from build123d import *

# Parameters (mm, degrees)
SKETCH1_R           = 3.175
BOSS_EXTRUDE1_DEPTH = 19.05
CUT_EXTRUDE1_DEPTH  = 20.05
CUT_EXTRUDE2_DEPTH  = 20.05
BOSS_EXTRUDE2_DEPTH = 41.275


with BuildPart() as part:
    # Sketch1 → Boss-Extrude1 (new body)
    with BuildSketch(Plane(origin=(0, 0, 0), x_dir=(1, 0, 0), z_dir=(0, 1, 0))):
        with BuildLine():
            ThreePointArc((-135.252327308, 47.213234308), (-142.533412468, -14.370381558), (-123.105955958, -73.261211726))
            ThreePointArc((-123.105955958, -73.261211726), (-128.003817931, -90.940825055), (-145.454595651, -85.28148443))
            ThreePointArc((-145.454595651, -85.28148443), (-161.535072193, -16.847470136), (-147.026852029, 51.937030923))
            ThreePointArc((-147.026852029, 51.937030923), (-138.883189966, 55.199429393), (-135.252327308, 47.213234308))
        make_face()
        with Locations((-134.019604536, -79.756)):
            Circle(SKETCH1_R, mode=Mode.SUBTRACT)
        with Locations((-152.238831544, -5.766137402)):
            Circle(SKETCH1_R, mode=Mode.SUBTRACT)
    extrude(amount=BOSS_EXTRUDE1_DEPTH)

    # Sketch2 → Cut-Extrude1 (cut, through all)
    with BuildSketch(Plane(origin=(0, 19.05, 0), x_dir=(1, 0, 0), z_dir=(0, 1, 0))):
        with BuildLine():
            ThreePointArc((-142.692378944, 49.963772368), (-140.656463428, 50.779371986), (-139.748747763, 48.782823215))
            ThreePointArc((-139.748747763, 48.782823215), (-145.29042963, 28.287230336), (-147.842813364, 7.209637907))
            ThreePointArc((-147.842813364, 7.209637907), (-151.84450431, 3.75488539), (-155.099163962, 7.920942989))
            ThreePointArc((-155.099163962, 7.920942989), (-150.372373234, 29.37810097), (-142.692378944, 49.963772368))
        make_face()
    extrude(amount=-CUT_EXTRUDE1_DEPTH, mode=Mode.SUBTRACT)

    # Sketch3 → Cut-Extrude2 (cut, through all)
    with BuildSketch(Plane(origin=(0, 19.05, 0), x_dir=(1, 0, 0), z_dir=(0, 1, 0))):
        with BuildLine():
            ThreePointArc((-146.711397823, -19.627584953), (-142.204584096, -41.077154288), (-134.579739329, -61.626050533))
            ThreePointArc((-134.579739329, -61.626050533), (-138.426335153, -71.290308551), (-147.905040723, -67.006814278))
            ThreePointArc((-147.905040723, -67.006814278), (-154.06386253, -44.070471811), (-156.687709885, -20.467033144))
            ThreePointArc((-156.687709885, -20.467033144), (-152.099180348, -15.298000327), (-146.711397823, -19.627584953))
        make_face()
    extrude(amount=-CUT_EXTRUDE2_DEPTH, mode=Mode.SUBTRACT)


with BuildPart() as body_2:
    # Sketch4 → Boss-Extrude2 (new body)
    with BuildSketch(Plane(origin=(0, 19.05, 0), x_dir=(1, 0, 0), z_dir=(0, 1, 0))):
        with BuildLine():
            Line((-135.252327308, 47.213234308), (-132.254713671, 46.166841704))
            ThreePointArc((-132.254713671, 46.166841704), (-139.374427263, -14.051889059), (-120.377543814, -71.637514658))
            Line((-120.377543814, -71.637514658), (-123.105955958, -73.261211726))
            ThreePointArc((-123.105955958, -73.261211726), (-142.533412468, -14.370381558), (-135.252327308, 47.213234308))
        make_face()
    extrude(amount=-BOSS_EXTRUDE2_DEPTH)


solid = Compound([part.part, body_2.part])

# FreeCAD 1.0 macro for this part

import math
import FreeCAD as App
import Part
import Sketcher

V = App.Vector
Q = App.Units.Quantity

doc = App.newDocument("Part")
body = doc.addObject("PartDesign::Body", "Body")

sketch1 = body.newObject("Sketcher::SketchObject", "Sketch")
sketch1.AttachmentSupport = (doc.getObject("XZ_Plane"), [""])
sketch1.MapMode = "FlatFace"
sketch1.addGeometry(Part.ArcOfCircle(Part.Circle(V(0, 0, 0), V(0, 0, 1), 143.3), math.radians(149), math.radians(199)), False)
sketch1.addGeometry(Part.ArcOfCircle(Part.Circle(V(-141.2, -49.3, 0), V(0, 0, 1), 6.3), math.radians(-156), math.radians(19)), False)
sketch1.addGeometry(Part.ArcOfCircle(Part.Circle(V(0, 15, 0), V(0, 0, 1), 161.5), math.radians(154), math.radians(204)), False)
sketch1.addGeometry(Part.ArcOfCircle(Part.Circle(V(-134, 79.8, 0), V(0, 0, 1), 12.7), math.radians(-31), math.radians(154)), False)
sketch1.addGeometry(Part.Circle(V(-134, 79.8, 0), V(0, 0, 1), 3.2), False)
sketch1.addGeometry(Part.Circle(V(-152.2, 5.8, 0), V(0, 0, 1), 3.2), False)
sketch1.addConstraint(Sketcher.Constraint("Tangent", 0, 2, 1, 2))
sketch1.addConstraint(Sketcher.Constraint("Tangent", 1, 1, 2, 2))
sketch1.addConstraint(Sketcher.Constraint("Tangent", 2, 1, 3, 2))
sketch1.addConstraint(Sketcher.Constraint("Tangent", 3, 1, 0, 1))
sketch1.addConstraint(Sketcher.Constraint("Coincident", 0, 3, -1, 1))
sketch1.addConstraint(Sketcher.Constraint("Coincident", 4, 3, 3, 3))
sketch1.addConstraint(Sketcher.Constraint("Equal", 4, 5))
sketch1.addConstraint(Sketcher.Constraint("PointOnObject", 2, 3, -2))
sketch1.addConstraint(Sketcher.Constraint("Radius", 3, Q("0.5 in")))
sketch1.addConstraint(Sketcher.Constraint("Diameter", 4, Q("0.25 in")))
sketch1.addConstraint(Sketcher.Constraint("Radius", 0, Q("5.64 in")))
sketch1.addConstraint(Sketcher.Constraint("Radius", 1, Q("0.25 in")))
sketch1.addConstraint(Sketcher.Constraint("DistanceY", -1, 1, 3, 3, Q("3.14 in")))
sketch1.addConstraint(Sketcher.Constraint("Radius", 2, Q("161.545676 mm")))
sketch1.addConstraint(Sketcher.Constraint("DistanceX", 5, 3, -1, 1, Q("152.238832 mm")))
sketch1.addConstraint(Sketcher.Constraint("DistanceY", 0, 2, 5, 3, Q("52.979372 mm")))
pad1 = body.newObject("PartDesign::Pad", "Pad")
pad1.Profile = sketch1
pad1.Length = Q("0.75 in")
pad1.Reversed = True

sketch2 = body.newObject("Sketcher::SketchObject", "Sketch001")
sketch2.AttachmentSupport = (doc.getObject("XZ_Plane"), [""])
sketch2.MapMode = "FlatFace"
sketch2.AttachmentOffset = App.Placement(V(0, 0, -0.75 * 25.4), App.Rotation())
sketch2.addGeometry(Part.ArcOfCircle(Part.Circle(V(-141.2, -49.3, 0), V(0, 0, 1), 1.6), math.radians(-156), math.radians(19)), False)
sketch2.addGeometry(Part.ArcOfCircle(Part.Circle(V(0, 15, 0), V(0, 0, 1), 156.8), math.radians(-171.59), math.radians(-155.52)), False)
sketch2.addGeometry(Part.ArcOfCircle(Part.Circle(V(-151.5, -7.4, 0), V(0, 0, 1), 3.6), math.radians(3), math.radians(188)), False)
sketch2.addGeometry(Part.ArcOfCircle(Part.Circle(V(0, 0, 0), V(0, 0, 1), 148), math.radians(-177.21), math.radians(-160.76)), False)
sketch2.addConstraint(Sketcher.Constraint("Tangent", 0, 1, 1, 2))
sketch2.addConstraint(Sketcher.Constraint("Tangent", 1, 1, 2, 2))
sketch2.addConstraint(Sketcher.Constraint("Tangent", 2, 1, 3, 1))
sketch2.addConstraint(Sketcher.Constraint("Tangent", 3, 2, 0, 2))
sketch2.addConstraint(Sketcher.Constraint("Coincident", 3, 3, -1, 1))
sketch2.addConstraint(Sketcher.Constraint("PointOnObject", 1, 3, -2))
sketch2.addConstraint(Sketcher.Constraint("Radius", 0, Q("0.0625 in")))
sketch2.addConstraint(Sketcher.Constraint("Radius", 3, Q("5.8275 in")))
sketch2.addConstraint(Sketcher.Constraint("Radius", 1, Q("156.783176 mm")))
sketch2.addConstraint(Sketcher.Constraint("Radius", 2, Q("3.649943 mm")))
sketch2.addConstraint(Sketcher.Constraint("DistanceY", 0, 3, 2, 3, Q("41.918601 mm")))
pocket1 = body.newObject("PartDesign::Pocket", "Pocket")
pocket1.Profile = sketch2
pocket1.Type = "ThroughAll"
pocket1.Reversed = True

sketch3 = body.newObject("Sketcher::SketchObject", "Sketch002")
sketch3.AttachmentSupport = (doc.getObject("XZ_Plane"), [""])
sketch3.MapMode = "FlatFace"
sketch3.AttachmentOffset = App.Placement(V(0, 0, -0.75 * 25.4), App.Rotation())
sketch3.addGeometry(Part.ArcOfCircle(Part.Circle(V(0, 0, 0), V(0, 0, 1), 148), math.radians(155.4), math.radians(172.38)), False)
sketch3.addGeometry(Part.ArcOfCircle(Part.Circle(V(-152, 20, 0), V(0, 0, 1), 5), math.radians(178), math.radians(352)), False)
sketch3.addGeometry(Part.ArcOfCircle(Part.Circle(V(0, 15, 0), V(0, 0, 1), 157), math.radians(160.63), math.radians(178)), False)
sketch3.addGeometry(Part.ArcOfCircle(Part.Circle(V(-141, 65, 0), V(0, 0, 1), 7), math.radians(-25), math.radians(161)), False)
sketch3.addConstraint(Sketcher.Constraint("Tangent", 0, 2, 1, 2))
sketch3.addConstraint(Sketcher.Constraint("Tangent", 1, 1, 2, 2))
sketch3.addConstraint(Sketcher.Constraint("Tangent", 2, 1, 3, 2))
sketch3.addConstraint(Sketcher.Constraint("Tangent", 3, 1, 0, 1))
sketch3.addConstraint(Sketcher.Constraint("Coincident", 0, 3, -1, 1))
sketch3.addConstraint(Sketcher.Constraint("PointOnObject", 2, 3, -2))
sketch3.addConstraint(Sketcher.Constraint("Radius", 0, Q("5.8275 in")))
sketch3.addConstraint(Sketcher.Constraint("Radius", 1, Q("5.011811 mm")))
sketch3.addConstraint(Sketcher.Constraint("Radius", 2, Q("156.783176 mm")))
sketch3.addConstraint(Sketcher.Constraint("Radius", 3, Q("7.192826 mm")))
sketch3.addConstraint(Sketcher.Constraint("DistanceY", 3, 1, 3, 3, Q("0.1179001 in")))
pocket2 = body.newObject("PartDesign::Pocket", "Pocket001")
pocket2.Profile = sketch3
pocket2.Type = "ThroughAll"
pocket2.Reversed = True
body2 = doc.addObject("PartDesign::Body", "Body001")

sketch4 = body2.newObject("Sketcher::SketchObject", "Sketch003")
sketch4.AttachmentSupport = (doc.getObject("XZ_Plane001"), [""])
sketch4.MapMode = "FlatFace"
sketch4.AttachmentOffset = App.Placement(V(0, 0, -0.75 * 25.4), App.Rotation())
sketch4.addGeometry(Part.LineSegment(V(-132.3, -46.2, 0), V(-135.3, -47.2, 0)), False)
sketch4.addGeometry(Part.ArcOfCircle(Part.Circle(V(0, 0, 0), V(0, 0, 1), 143.3), math.radians(149), math.radians(199)), False)
sketch4.addGeometry(Part.LineSegment(V(-123.1, 73.3, 0), V(-120.4, 71.6, 0)), False)
sketch4.addGeometry(Part.ArcOfCircle(Part.Circle(V(0, 0, 0), V(0, 0, 1), 140.1), math.radians(149), math.radians(199)), False)
sketch4.addConstraint(Sketcher.Constraint("Coincident", 0, 2, 1, 2))
sketch4.addConstraint(Sketcher.Constraint("Coincident", 1, 1, 2, 1))
sketch4.addConstraint(Sketcher.Constraint("Coincident", 2, 2, 3, 1))
sketch4.addConstraint(Sketcher.Constraint("Coincident", 3, 2, 0, 1))
sketch4.addConstraint(Sketcher.Constraint("Coincident", 1, 3, -1, 1))
sketch4.addConstraint(Sketcher.Constraint("Coincident", 3, 3, -1, 1))
sketch4.addConstraint(Sketcher.Constraint("Radius", 1, Q("5.64 in")))
sketch4.addConstraint(Sketcher.Constraint("Radius", 3, Q("5.515 in")))
sketch4.addConstraint(Sketcher.Constraint("DistanceY", -1, 1, 1, 1, Q("73.261212 mm")))
sketch4.addConstraint(Sketcher.Constraint("DistanceY", 3, 2, -1, 1, Q("46.166842 mm")))
sketch4.addConstraint(Sketcher.Constraint("DistanceX", 0, 2, 1, 1, Q("12.146371 mm")))
sketch4.addConstraint(Sketcher.Constraint("DistanceY", 0, 2, 2, 2, Q("118.850749 mm")))
pad2 = body2.newObject("PartDesign::Pad", "Pad001")
pad2.Profile = sketch4
pad2.Length = Q("1.625 in")

doc.recompute()
